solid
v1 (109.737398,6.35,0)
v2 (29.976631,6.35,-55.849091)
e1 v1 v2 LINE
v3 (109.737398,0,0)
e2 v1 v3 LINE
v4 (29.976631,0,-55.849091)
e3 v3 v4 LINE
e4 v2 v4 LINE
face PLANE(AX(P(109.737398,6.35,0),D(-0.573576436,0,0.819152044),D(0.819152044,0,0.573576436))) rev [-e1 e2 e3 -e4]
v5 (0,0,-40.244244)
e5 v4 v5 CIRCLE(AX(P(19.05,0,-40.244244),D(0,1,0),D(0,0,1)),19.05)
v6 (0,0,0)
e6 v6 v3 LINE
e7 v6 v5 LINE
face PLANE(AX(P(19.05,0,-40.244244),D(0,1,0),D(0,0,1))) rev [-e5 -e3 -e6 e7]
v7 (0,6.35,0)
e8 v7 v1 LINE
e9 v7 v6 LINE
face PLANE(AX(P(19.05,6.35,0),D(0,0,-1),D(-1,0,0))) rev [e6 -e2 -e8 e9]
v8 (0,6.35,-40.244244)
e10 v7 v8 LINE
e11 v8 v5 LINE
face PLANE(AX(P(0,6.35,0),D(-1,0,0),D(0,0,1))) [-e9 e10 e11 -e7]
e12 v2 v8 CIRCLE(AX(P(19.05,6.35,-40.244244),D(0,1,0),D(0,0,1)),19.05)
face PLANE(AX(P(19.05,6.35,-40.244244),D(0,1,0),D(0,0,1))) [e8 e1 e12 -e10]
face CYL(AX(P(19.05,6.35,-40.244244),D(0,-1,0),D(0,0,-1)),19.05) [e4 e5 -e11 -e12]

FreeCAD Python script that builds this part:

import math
import FreeCAD as App
import Part
import Sketcher
Q = App.Units.Quantity

doc = App.newDocument("Part")
body = doc.addObject("PartDesign::Body", "Body")

# Sketch on XZ plane
sketch1 = body.newObject("Sketcher::SketchObject", "Sketch")
sketch1.AttachmentSupport = (doc.getObject("XZ_Plane"), [""])
sketch1.MapMode = "FlatFace"
sketch1.addGeometry([
    Part.LineSegment(App.Vector(110, 0, 0), App.Vector(30, -56, 0)),
    Part.ArcOfCircle(Part.Circle(App.Vector(19, -40, 0), App.Vector(0, 0, 1), 19), math.radians(180), math.radians(305)),
    Part.LineSegment(App.Vector(0, -40, 0), App.Vector(0, 0, 0)),
    Part.LineSegment(App.Vector(0, 0, 0), App.Vector(110, 0, 0)),
], False)
sketch1.addConstraint([
    Sketcher.Constraint("Tangent", 0, 2, 1, 2),
    Sketcher.Constraint("Tangent", 1, 1, 2, 1),
    Sketcher.Constraint("Coincident", 2, 2, 3, 1),
    Sketcher.Constraint("Coincident", 3, 2, 0, 1),
    Sketcher.Constraint("Vertical", 2),
    Sketcher.Constraint("Horizontal", 3),
    Sketcher.Constraint("Coincident", 2, 2, -1, 1),
    Sketcher.Constraint("Radius", 1, Q("0.75 in")),
    Sketcher.Constraint("Angle", 0, Q("-145 deg")),
    Sketcher.Constraint("DistanceX", 3, 1, 3, 2, 109.737398),
])
pad1 = body.newObject("PartDesign::Pad", "Pad")
pad1.Profile = sketch1
pad1.Length = Q("0.25 in")
pad1.Reversed = True

doc.recompute()
